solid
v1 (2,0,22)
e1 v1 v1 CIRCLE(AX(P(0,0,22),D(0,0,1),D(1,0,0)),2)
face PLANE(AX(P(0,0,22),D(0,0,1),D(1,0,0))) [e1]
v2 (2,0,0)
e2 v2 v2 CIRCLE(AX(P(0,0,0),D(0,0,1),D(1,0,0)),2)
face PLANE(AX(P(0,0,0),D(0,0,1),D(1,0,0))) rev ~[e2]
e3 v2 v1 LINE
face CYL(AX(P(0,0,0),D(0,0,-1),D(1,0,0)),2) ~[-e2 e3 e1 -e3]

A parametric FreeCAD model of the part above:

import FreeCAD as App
import Part
import Sketcher

V = App.Vector

doc = App.newDocument("Part")
body = doc.addObject("PartDesign::Body", "Body")

# Sketch on XY plane
sketch1 = body.newObject("Sketcher::SketchObject", "Sketch")
sketch1.AttachmentSupport = (doc.getObject("XY_Plane"), [""])
sketch1.MapMode = "FlatFace"
sketch1.addGeometry(Part.Circle(V(0, 0, 0), V(0, 0, 1), 2), False)
sketch1.addConstraint(Sketcher.Constraint("Coincident", 0, 3, -1, 1))
sketch1.addConstraint(Sketcher.Constraint("Diameter", 0, 4.0))
pad1 = body.newObject("PartDesign::Pad", "Pad")
pad1.Profile = sketch1
pad1.Length = 22

doc.recompute()
